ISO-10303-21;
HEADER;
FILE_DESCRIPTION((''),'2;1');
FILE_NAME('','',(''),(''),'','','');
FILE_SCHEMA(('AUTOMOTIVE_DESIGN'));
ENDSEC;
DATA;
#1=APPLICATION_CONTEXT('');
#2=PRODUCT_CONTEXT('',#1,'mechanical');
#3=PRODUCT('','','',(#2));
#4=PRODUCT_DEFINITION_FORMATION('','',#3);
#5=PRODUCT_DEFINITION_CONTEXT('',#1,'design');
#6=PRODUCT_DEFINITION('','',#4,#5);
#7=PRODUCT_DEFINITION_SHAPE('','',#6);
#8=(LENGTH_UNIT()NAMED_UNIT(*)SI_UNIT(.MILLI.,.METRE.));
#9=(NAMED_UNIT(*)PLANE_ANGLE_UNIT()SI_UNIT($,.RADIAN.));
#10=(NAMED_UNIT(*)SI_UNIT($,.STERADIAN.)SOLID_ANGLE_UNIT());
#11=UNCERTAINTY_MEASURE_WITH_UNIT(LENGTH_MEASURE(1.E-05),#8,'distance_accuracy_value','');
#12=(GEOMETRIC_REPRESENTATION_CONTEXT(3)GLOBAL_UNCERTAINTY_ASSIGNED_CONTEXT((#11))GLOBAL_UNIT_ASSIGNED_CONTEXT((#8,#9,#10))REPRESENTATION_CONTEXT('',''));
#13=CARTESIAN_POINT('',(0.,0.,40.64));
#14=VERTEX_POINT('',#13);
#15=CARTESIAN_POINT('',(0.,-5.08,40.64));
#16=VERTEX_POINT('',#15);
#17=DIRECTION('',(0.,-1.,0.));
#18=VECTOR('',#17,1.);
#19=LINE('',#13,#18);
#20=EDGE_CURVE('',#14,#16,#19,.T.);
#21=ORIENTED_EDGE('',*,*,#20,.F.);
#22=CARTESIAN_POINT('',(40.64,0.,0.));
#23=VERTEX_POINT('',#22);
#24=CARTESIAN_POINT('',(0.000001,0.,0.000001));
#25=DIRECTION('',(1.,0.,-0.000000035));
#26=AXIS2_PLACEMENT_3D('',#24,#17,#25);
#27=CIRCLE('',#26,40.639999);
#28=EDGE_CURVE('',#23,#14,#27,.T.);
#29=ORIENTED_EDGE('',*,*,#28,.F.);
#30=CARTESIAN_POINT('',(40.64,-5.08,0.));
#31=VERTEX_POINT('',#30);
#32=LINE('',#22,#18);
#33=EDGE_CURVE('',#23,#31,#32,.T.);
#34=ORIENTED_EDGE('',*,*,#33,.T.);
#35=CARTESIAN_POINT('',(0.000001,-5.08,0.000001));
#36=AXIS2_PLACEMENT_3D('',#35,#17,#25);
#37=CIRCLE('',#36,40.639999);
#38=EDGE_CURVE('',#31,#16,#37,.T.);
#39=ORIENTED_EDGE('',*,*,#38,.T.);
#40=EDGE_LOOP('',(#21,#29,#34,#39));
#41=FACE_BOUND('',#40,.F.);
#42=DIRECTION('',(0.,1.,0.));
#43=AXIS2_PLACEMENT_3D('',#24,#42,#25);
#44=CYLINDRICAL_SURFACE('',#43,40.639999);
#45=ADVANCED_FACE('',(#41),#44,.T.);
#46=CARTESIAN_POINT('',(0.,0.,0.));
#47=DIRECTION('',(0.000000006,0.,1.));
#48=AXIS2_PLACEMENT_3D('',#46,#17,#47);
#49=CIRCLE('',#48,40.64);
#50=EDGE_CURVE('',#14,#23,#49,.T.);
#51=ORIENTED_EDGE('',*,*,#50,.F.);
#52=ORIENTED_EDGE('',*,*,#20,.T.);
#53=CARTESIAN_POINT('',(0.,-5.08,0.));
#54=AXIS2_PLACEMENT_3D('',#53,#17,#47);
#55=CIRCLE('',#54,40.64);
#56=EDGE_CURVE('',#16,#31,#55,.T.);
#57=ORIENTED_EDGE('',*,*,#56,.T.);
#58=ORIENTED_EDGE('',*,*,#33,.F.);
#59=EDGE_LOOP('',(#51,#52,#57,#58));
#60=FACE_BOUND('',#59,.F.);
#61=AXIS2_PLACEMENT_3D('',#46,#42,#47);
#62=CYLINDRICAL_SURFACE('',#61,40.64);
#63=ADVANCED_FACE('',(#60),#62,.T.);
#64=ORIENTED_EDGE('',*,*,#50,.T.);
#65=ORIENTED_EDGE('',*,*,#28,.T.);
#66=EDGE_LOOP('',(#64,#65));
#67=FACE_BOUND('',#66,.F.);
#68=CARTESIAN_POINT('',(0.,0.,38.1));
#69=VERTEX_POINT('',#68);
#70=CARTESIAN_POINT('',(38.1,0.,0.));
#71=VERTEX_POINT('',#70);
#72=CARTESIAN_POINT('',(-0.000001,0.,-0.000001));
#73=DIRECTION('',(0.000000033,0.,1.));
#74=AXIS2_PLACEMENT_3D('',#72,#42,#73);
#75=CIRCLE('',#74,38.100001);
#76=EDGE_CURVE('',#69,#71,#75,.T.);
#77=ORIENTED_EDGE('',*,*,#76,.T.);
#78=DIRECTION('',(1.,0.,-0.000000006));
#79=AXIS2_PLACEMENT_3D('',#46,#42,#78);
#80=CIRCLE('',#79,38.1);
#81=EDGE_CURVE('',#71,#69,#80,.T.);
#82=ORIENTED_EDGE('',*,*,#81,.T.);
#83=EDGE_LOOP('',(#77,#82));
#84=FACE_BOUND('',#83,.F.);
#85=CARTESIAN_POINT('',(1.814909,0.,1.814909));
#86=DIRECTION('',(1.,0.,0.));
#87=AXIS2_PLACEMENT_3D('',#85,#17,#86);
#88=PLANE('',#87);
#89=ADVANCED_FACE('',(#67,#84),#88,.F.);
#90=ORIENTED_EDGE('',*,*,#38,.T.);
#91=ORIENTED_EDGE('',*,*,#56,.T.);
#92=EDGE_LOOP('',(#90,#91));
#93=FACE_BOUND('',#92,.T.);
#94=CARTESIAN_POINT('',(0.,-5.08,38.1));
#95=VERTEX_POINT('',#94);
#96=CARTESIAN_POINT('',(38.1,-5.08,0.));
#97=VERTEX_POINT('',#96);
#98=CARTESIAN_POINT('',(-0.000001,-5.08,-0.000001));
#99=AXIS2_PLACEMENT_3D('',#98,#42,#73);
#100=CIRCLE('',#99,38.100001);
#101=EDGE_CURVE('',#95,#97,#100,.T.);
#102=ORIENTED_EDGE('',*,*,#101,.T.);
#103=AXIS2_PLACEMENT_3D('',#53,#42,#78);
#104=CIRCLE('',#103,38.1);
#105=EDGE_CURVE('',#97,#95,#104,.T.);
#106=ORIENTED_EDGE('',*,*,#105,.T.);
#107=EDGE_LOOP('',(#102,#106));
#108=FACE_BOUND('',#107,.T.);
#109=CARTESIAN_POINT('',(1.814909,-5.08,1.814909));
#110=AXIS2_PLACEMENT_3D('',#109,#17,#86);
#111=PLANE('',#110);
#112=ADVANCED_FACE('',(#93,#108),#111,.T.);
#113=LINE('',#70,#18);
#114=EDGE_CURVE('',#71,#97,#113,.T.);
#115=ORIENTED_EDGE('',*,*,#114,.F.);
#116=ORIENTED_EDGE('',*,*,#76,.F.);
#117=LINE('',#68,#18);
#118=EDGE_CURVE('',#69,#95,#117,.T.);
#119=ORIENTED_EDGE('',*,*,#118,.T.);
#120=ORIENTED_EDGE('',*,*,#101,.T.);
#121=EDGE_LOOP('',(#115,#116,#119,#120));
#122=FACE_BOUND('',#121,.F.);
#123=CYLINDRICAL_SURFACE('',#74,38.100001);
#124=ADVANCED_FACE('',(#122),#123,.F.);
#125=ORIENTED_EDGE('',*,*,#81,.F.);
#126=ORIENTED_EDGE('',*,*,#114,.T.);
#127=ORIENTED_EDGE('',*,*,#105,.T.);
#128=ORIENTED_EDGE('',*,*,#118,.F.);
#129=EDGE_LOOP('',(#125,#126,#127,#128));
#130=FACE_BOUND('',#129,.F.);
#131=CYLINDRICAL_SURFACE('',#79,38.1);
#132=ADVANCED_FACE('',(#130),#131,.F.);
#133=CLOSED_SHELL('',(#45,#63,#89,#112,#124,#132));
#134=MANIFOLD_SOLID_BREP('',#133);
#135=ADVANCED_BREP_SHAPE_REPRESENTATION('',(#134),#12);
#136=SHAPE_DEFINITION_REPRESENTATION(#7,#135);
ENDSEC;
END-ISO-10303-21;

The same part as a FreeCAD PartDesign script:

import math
import FreeCAD as App
import Part
import Sketcher
from FreeCAD import Vector
Q = App.Units.Quantity

doc = App.newDocument("Part")
body = doc.addObject("PartDesign::Body", "Body")

# Sketch on XZ plane
sketch1 = body.newObject("Sketcher::SketchObject", "Sketch")
sketch1.AttachmentSupport = (doc.getObject("XZ_Plane"), [""])
sketch1.MapMode = "FlatFace"
sketch1.addGeometry(Part.ArcOfCircle(Part.Circle(Vector(0, 0, 0), Vector(0, 0, 1), 41), math.radians(90), math.radians(360)), False)
sketch1.addGeometry(Part.ArcOfCircle(Part.Circle(Vector(0, 0, 0), Vector(0, 0, 1), 41), math.radians(0), math.radians(90)), False)
sketch1.addGeometry(Part.ArcOfCircle(Part.Circle(Vector(0, 0, 0), Vector(0, 0, 1), 38), math.radians(0), math.radians(90)), False)
sketch1.addGeometry(Part.ArcOfCircle(Part.Circle(Vector(0, 0, 0), Vector(0, 0, 1), 38), math.radians(90), math.radians(360)), False)
sketch1.addConstraint(Sketcher.Constraint("Tangent", 0, 1, 1, 2))
sketch1.addConstraint(Sketcher.Constraint("Coincident", 1, 1, 0, 2))
sketch1.addConstraint(Sketcher.Constraint("Tangent", 2, 1, 3, 2))
sketch1.addConstraint(Sketcher.Constraint("Coincident", 3, 1, 2, 2))
sketch1.addConstraint(Sketcher.Constraint("Coincident", 0, 3, -1, 1))
sketch1.addConstraint(Sketcher.Constraint("Coincident", 2, 3, -1, 1))
sketch1.addConstraint(Sketcher.Constraint("PointOnObject", 0, 1, -2))
sketch1.addConstraint(Sketcher.Constraint("PointOnObject", 1, 1, -1))
sketch1.addConstraint(Sketcher.Constraint("PointOnObject", 2, 1, -1))
sketch1.addConstraint(Sketcher.Constraint("PointOnObject", 3, 1, -2))
sketch1.addConstraint(Sketcher.Constraint("Radius", 0, Q("1.6 in")))
sketch1.addConstraint(Sketcher.Constraint("Radius", 2, Q("1.5 in")))
pad1 = body.newObject("PartDesign::Pad", "Pad")
pad1.Profile = sketch1
pad1.Length = Q("0.2 in")

doc.recompute()
